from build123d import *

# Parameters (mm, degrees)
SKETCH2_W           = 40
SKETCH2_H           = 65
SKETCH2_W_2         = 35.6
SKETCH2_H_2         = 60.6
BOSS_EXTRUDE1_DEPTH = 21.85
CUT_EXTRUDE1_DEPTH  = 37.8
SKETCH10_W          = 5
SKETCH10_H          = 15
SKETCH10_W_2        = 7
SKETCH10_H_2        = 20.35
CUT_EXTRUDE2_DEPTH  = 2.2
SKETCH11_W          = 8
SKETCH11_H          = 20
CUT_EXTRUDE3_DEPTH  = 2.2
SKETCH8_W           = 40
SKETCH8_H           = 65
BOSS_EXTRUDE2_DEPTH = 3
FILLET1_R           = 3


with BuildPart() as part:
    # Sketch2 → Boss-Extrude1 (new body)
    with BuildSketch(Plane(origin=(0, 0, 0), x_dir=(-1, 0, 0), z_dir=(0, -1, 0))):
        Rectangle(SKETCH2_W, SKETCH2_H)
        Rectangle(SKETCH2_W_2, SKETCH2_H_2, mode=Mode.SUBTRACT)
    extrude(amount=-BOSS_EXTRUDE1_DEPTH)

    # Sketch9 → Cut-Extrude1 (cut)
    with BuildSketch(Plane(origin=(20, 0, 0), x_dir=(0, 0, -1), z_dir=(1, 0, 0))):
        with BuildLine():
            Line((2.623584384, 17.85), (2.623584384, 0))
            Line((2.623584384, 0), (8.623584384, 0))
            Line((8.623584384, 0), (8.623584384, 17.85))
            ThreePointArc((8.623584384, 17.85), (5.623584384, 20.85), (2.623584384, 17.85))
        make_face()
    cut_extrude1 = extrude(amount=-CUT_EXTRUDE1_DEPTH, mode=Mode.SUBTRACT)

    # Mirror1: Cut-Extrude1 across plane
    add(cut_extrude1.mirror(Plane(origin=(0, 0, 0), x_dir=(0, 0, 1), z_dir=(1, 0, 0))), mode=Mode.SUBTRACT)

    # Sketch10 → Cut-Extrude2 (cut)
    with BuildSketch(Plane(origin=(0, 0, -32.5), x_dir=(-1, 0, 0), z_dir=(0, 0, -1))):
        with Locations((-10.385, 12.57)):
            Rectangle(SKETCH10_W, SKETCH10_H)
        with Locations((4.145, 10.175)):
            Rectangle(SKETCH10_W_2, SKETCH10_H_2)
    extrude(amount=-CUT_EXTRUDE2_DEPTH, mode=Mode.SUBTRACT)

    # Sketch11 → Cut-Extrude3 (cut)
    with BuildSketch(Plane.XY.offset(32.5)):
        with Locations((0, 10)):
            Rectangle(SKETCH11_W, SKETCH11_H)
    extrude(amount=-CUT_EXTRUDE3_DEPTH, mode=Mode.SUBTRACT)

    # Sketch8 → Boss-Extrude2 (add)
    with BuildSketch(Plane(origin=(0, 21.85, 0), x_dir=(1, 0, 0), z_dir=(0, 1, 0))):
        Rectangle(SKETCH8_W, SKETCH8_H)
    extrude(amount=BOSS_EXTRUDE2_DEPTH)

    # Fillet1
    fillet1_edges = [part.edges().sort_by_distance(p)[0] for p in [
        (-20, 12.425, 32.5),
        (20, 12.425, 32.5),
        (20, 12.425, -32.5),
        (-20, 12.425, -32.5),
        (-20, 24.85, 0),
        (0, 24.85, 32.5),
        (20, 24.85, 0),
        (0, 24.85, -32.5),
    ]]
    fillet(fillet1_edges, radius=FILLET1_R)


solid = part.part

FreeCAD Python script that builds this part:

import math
import FreeCAD as App
import Part
import Sketcher


def edges_at(feature, points):
    """Names of the edges that pass closest to the given points."""
    edges = feature.Shape.Edges
    near = lambda p: min(range(len(edges)), key=lambda i: edges[i].distToShape(Part.Vertex(*p))[0])
    return sorted({f"Edge{near(p) + 1}" for p in points})

doc = App.newDocument("Part")
body = doc.addObject("PartDesign::Body", "Body")

# Sketch on XZ plane
sketch1 = doc.addObject("Sketcher::SketchObject", "Sketch")
body.addObject(sketch1)
sketch1.AttachmentSupport = (doc.XZ_Plane, [""])
sketch1.MapMode = "FlatFace"
sketch1.addGeometry([
    Part.LineSegment(App.Vector(20, -32, 0), App.Vector(20, 32, 0)),  # 0
    Part.LineSegment(App.Vector(20, 32, 0), App.Vector(-20, 32, 0)),  # 1
    Part.LineSegment(App.Vector(-20, 32, 0), App.Vector(-20, -32, 0)),  # 2
    Part.LineSegment(App.Vector(-20, -32, 0), App.Vector(20, -32, 0)),  # 3
    Part.LineSegment(App.Vector(-18, 30, 0), App.Vector(18, 30, 0)),  # 4
    Part.LineSegment(App.Vector(18, 30, 0), App.Vector(18, -30, 0)),  # 5
    Part.LineSegment(App.Vector(18, -30, 0), App.Vector(-18, -30, 0)),  # 6
    Part.LineSegment(App.Vector(-18, -30, 0), App.Vector(-18, 30, 0)),  # 7
], False)
sketch1.addConstraint([
    Sketcher.Constraint("Coincident", 0, 2, 1, 1),
    Sketcher.Constraint("Coincident", 1, 2, 2, 1),
    Sketcher.Constraint("Coincident", 2, 2, 3, 1),
    Sketcher.Constraint("Coincident", 3, 2, 0, 1),
    Sketcher.Constraint("Coincident", 4, 2, 5, 1),
    Sketcher.Constraint("Coincident", 5, 2, 6, 1),
    Sketcher.Constraint("Coincident", 6, 2, 7, 1),
    Sketcher.Constraint("Coincident", 7, 2, 4, 1),
    Sketcher.Constraint("Vertical", 0),
    Sketcher.Constraint("Horizontal", 1),
    Sketcher.Constraint("Vertical", 2),
    Sketcher.Constraint("Horizontal", 3),
    Sketcher.Constraint("Horizontal", 4),
    Sketcher.Constraint("Vertical", 5),
    Sketcher.Constraint("Horizontal", 6),
    Sketcher.Constraint("Vertical", 7),
    Sketcher.Constraint("Symmetric", 0, 2, 2, 2, -1, 1),
    Sketcher.Constraint("Symmetric", 4, 2, 6, 2, -1, 1),
    Sketcher.Constraint("DistanceX", 1, 2, 1, 1, 40.0),
    Sketcher.Constraint("DistanceY", 0, 1, 0, 2, 65.0),
    Sketcher.Constraint("DistanceX", 4, 1, 4, 2, 35.6),
    Sketcher.Constraint("DistanceY", 5, 2, 5, 1, 60.6),
])
pad1 = doc.addObject("PartDesign::Pad", "Pad")
body.addObject(pad1)
pad1.Profile = sketch1
pad1.Length = 21.85
pad1.Reversed = True

# Sketch on YZ plane
sketch2 = doc.addObject("Sketcher::SketchObject", "Sketch001")
body.addObject(sketch2)
sketch2.AttachmentSupport = (doc.YZ_Plane, [""])
sketch2.MapMode = "FlatFace"
sketch2.AttachmentOffset = App.Placement(App.Vector(0, 0, 20), App.Rotation())
sketch2.addGeometry([
    Part.LineSegment(App.Vector(17.9, -2.6, 0), App.Vector(0, -2.6, 0)),
    Part.LineSegment(App.Vector(0, -2.6, 0), App.Vector(0, -8.6, 0)),
    Part.LineSegment(App.Vector(0, -8.6, 0), App.Vector(17.9, -8.6, 0)),
    Part.ArcOfCircle(Part.Circle(App.Vector(17.9, -5.6, 0), App.Vector(0, 0, 1), 3), math.radians(-90), math.radians(90)),
], False)
sketch2.addConstraint([
    Sketcher.Constraint("Coincident", 0, 2, 1, 1),
    Sketcher.Constraint("Coincident", 1, 2, 2, 1),
    Sketcher.Constraint("Tangent", 2, 2, 3, 1),
    Sketcher.Constraint("Tangent", 3, 2, 0, 1),
    Sketcher.Constraint("Horizontal", 0),
    Sketcher.Constraint("Vertical", 1),
    Sketcher.Constraint("Horizontal", 2),
    Sketcher.Constraint("PointOnObject", 0, 2, -2),
    Sketcher.Constraint("Radius", 3, 3.0),
    Sketcher.Constraint("DistanceX", 0, 2, 0, 1, 17.85),
    Sketcher.Constraint("DistanceY", 3, 3, -1, 1, 5.623584),
])
pocket1 = doc.addObject("PartDesign::Pocket", "Pocket")
body.addObject(pocket1)
pocket1.Profile = sketch2
pocket1.Length = 37.8
doc.recompute()

mirrored = doc.addObject("PartDesign::Mirrored", "Mirrored")
body.addObject(mirrored)
mirrored.Originals = [pocket1]
mirrored.MirrorPlane = (doc.YZ_Plane, [""])
body.Tip = mirrored

# Sketch on XY plane
sketch3 = doc.addObject("Sketcher::SketchObject", "Sketch002")
body.addObject(sketch3)
sketch3.AttachmentSupport = (doc.XY_Plane, [""])
sketch3.MapMode = "FlatFace"
sketch3.AttachmentOffset = App.Placement(App.Vector(0, 0, -32.5), App.Rotation())
sketch3.addGeometry([
    Part.LineSegment(App.Vector(13, 20, 0), App.Vector(13, 5, 0)),  # 0
    Part.LineSegment(App.Vector(13, 5, 0), App.Vector(8, 5, 0)),  # 1
    Part.LineSegment(App.Vector(8, 5, 0), App.Vector(8, 20, 0)),  # 2
    Part.LineSegment(App.Vector(8, 20, 0), App.Vector(13, 20, 0)),  # 3
    Part.LineSegment(App.Vector(-1, 20, 0), App.Vector(-1, 0, 0)),  # 4
    Part.LineSegment(App.Vector(-1, 0, 0), App.Vector(-8, 0, 0)),  # 5
    Part.LineSegment(App.Vector(-8, 0, 0), App.Vector(-8, 20, 0)),  # 6
    Part.LineSegment(App.Vector(-8, 20, 0), App.Vector(-1, 20, 0)),  # 7
], False)
sketch3.addConstraint([
    Sketcher.Constraint("Coincident", 0, 2, 1, 1),
    Sketcher.Constraint("Coincident", 1, 2, 2, 1),
    Sketcher.Constraint("Coincident", 2, 2, 3, 1),
    Sketcher.Constraint("Coincident", 3, 2, 0, 1),
    Sketcher.Constraint("Coincident", 4, 2, 5, 1),
    Sketcher.Constraint("Coincident", 5, 2, 6, 1),
    Sketcher.Constraint("Coincident", 6, 2, 7, 1),
    Sketcher.Constraint("Coincident", 7, 2, 4, 1),
    Sketcher.Constraint("Vertical", 0),
    Sketcher.Constraint("Horizontal", 1),
    Sketcher.Constraint("Vertical", 2),
    Sketcher.Constraint("Horizontal", 3),
    Sketcher.Constraint("Vertical", 4),
    Sketcher.Constraint("Horizontal", 5),
    Sketcher.Constraint("Vertical", 6),
    Sketcher.Constraint("Horizontal", 7),
    Sketcher.Constraint("PointOnObject", 4, 2, -1),
    Sketcher.Constraint("DistanceX", 1, 2, 1, 1, 5.0),
    Sketcher.Constraint("DistanceX", 5, 2, 5, 1, 7.0),
    Sketcher.Constraint("DistanceY", 0, 2, 0, 1, 15.0),
    Sketcher.Constraint("DistanceY", 4, 2, 4, 1, 20.35),
    Sketcher.Constraint("DistanceY", -1, 1, 0, 2, 5.07),
    Sketcher.Constraint("DistanceX", 4, 2, 1, 2, 8.53),
    Sketcher.Constraint("DistanceX", -1, 1, 0, 2, 12.885),
])
pocket2 = doc.addObject("PartDesign::Pocket", "Pocket001")
body.addObject(pocket2)
pocket2.Profile = sketch3
pocket2.Length = 2.2
pocket2.Reversed = True

# Sketch on XY plane
sketch4 = doc.addObject("Sketcher::SketchObject", "Sketch003")
body.addObject(sketch4)
sketch4.AttachmentSupport = (doc.XY_Plane, [""])
sketch4.MapMode = "FlatFace"
sketch4.AttachmentOffset = App.Placement(App.Vector(0, 0, 32.5), App.Rotation())
sketch4.addGeometry([
    Part.LineSegment(App.Vector(-4, 20, 0), App.Vector(-4, 0, 0)),
    Part.LineSegment(App.Vector(-4, 0, 0), App.Vector(4, 0, 0)),
    Part.LineSegment(App.Vector(4, 0, 0), App.Vector(4, 20, 0)),
    Part.LineSegment(App.Vector(4, 20, 0), App.Vector(-4, 20, 0)),
], False)
sketch4.addConstraint([
    Sketcher.Constraint("Coincident", 0, 2, 1, 1),
    Sketcher.Constraint("Coincident", 1, 2, 2, 1),
    Sketcher.Constraint("Coincident", 2, 2, 3, 1),
    Sketcher.Constraint("Coincident", 3, 2, 0, 1),
    Sketcher.Constraint("Vertical", 0),
    Sketcher.Constraint("Horizontal", 1),
    Sketcher.Constraint("Vertical", 2),
    Sketcher.Constraint("Horizontal", 3),
    Sketcher.Constraint("Symmetric", 0, 2, 1, 2, -1, 1),
    Sketcher.Constraint("DistanceX", 1, 1, 1, 2, 8.0),
    Sketcher.Constraint("DistanceY", 0, 2, 0, 1, 20.0),
])
pocket3 = doc.addObject("PartDesign::Pocket", "Pocket002")
body.addObject(pocket3)
pocket3.Profile = sketch4
pocket3.Length = 2.2

# Sketch on XZ plane
sketch5 = doc.addObject("Sketcher::SketchObject", "Sketch004")
body.addObject(sketch5)
sketch5.AttachmentSupport = (doc.XZ_Plane, [""])
sketch5.MapMode = "FlatFace"
sketch5.AttachmentOffset = App.Placement(App.Vector(0, 0, -21.85), App.Rotation())
sketch5.addGeometry([
    Part.LineSegment(App.Vector(-20, -32, 0), App.Vector(-20, 32, 0)),
    Part.LineSegment(App.Vector(-20, 32, 0), App.Vector(20, 32, 0)),
    Part.LineSegment(App.Vector(20, 32, 0), App.Vector(20, -32, 0)),
    Part.LineSegment(App.Vector(20, -32, 0), App.Vector(-20, -32, 0)),
], False)
sketch5.addConstraint([
    Sketcher.Constraint("Coincident", 0, 2, 1, 1),
    Sketcher.Constraint("Coincident", 1, 2, 2, 1),
    Sketcher.Constraint("Coincident", 2, 2, 3, 1),
    Sketcher.Constraint("Coincident", 3, 2, 0, 1),
    Sketcher.Constraint("Vertical", 0),
    Sketcher.Constraint("Horizontal", 1),
    Sketcher.Constraint("Vertical", 2),
    Sketcher.Constraint("Horizontal", 3),
    Sketcher.Constraint("Symmetric", 0, 2, 2, 2, -1, 1),
    Sketcher.Constraint("DistanceX", 1, 1, 1, 2, 40.0),
    Sketcher.Constraint("DistanceY", 0, 1, 0, 2, 65.0),
])
pad2 = doc.addObject("PartDesign::Pad", "Pad001")
body.addObject(pad2)
pad2.Profile = sketch5
pad2.Length = 3
pad2.Reversed = True
doc.recompute()

fillet = doc.addObject("PartDesign::Fillet", "Fillet")
body.addObject(fillet)
fillet.Base = (pad2, edges_at(pad2, [
    (-20, 12.425, 32.5),
    (20, 12.425, 32.5),
    (20, 12.425, -32.5),
    (-20, 12.425, -32.5),
    (-20, 24.85, 0),
    (0, 24.85, 32.5),
    (20, 24.85, 0),
    (0, 24.85, -32.5),
]))
fillet.Radius = 3

doc.recompute()
